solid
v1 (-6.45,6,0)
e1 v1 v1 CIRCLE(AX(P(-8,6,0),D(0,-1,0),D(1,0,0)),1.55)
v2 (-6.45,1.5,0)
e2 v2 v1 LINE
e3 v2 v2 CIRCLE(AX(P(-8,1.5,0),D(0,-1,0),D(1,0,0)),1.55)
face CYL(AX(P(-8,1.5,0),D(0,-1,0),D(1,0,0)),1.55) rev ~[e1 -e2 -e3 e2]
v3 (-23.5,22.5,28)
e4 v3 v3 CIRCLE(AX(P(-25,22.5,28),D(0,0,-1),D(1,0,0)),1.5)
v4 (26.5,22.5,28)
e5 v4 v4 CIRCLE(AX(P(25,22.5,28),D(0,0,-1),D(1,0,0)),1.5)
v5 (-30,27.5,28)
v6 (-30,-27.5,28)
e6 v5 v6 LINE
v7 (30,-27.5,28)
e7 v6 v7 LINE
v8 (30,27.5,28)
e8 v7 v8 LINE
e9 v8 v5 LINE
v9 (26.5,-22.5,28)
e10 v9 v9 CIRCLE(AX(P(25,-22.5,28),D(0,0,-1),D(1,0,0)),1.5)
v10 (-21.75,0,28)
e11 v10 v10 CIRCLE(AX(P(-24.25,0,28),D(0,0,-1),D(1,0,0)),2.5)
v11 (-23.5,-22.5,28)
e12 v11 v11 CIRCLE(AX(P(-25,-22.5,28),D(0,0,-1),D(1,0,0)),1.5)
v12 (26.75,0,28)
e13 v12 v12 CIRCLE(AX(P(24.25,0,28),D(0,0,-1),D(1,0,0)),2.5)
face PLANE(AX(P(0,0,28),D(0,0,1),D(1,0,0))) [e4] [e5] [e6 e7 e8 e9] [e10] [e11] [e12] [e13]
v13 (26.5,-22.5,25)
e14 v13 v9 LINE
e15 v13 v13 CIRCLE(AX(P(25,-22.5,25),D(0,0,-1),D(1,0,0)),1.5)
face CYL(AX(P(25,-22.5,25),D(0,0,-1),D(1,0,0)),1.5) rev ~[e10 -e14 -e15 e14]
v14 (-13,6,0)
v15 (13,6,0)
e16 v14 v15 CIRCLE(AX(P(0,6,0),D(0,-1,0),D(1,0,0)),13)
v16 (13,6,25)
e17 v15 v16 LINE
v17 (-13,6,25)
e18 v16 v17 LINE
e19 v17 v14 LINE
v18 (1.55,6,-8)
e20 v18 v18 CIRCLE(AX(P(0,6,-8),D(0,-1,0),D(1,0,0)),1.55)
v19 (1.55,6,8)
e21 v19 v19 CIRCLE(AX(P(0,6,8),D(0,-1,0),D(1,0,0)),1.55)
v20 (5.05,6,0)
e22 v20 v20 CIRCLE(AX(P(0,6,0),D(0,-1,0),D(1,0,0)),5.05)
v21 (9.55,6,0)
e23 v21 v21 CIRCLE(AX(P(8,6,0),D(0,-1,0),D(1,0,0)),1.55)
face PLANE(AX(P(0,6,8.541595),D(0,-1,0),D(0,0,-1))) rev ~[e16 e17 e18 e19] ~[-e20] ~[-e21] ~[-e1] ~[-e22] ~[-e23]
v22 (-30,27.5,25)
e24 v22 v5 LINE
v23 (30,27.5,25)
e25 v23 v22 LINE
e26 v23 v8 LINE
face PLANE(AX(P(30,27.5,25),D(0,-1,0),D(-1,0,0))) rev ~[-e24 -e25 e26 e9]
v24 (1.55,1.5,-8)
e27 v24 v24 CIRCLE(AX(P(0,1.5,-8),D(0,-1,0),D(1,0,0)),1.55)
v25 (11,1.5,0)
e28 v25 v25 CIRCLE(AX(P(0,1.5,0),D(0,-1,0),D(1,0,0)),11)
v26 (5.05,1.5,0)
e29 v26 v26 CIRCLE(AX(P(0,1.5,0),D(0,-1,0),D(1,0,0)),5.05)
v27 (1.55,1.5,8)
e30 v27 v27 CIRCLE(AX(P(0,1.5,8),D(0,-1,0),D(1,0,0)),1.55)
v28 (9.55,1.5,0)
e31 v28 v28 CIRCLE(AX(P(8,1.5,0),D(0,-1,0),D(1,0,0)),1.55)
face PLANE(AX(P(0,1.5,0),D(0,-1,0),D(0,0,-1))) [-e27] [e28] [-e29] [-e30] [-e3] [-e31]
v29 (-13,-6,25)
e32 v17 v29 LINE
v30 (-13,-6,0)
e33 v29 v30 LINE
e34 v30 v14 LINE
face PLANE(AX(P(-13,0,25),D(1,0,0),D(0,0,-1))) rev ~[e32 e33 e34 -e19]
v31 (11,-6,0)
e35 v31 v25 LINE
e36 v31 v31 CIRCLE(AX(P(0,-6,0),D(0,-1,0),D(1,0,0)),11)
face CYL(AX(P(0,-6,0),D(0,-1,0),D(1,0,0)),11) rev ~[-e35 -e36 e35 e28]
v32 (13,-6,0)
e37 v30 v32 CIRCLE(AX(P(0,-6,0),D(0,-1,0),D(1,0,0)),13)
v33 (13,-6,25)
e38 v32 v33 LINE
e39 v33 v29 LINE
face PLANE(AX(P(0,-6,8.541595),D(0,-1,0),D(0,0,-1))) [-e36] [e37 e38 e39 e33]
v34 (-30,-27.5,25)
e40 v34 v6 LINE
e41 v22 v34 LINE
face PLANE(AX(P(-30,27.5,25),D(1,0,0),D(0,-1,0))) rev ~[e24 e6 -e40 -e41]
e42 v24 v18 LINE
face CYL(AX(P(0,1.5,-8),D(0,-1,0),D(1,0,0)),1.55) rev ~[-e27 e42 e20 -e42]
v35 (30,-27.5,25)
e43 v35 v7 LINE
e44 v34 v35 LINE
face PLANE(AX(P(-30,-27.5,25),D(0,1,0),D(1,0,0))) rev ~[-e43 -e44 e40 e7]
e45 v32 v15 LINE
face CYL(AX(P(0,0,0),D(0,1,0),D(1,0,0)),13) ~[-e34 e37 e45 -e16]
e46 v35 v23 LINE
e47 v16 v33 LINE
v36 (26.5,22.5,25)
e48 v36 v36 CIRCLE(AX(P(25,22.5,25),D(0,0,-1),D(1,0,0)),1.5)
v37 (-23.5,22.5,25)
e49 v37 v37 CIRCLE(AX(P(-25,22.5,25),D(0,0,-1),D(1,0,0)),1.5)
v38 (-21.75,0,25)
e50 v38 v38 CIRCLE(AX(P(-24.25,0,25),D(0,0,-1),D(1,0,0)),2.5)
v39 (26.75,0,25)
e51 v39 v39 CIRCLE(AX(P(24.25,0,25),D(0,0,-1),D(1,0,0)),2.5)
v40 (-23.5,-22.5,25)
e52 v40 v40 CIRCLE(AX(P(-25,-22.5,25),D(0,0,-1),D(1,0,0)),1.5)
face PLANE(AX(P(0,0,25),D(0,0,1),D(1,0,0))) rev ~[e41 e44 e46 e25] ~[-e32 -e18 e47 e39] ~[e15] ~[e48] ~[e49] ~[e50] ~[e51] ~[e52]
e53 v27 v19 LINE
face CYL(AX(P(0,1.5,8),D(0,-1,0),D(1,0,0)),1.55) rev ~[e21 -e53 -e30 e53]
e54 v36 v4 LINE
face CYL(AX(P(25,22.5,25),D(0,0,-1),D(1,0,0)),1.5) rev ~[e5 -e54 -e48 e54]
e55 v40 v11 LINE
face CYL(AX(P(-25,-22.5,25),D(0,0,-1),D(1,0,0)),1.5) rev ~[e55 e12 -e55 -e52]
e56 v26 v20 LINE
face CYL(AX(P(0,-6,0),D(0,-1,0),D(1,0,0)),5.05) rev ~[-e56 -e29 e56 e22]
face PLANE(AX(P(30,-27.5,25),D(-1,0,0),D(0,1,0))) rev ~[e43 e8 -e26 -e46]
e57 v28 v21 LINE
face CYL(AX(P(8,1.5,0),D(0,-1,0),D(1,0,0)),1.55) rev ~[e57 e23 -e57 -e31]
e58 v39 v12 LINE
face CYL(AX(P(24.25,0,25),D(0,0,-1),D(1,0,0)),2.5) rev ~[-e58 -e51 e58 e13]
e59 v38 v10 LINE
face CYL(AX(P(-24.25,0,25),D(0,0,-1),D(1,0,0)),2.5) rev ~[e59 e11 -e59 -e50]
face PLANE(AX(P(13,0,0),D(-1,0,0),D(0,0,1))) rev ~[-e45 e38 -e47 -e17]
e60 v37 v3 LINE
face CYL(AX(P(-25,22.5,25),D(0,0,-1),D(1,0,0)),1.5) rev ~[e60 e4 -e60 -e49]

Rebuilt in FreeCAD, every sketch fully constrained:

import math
import FreeCAD as App
import Part
import Sketcher

V = App.Vector


def add_polygon(sketch, points):
    """Adds a closed chain of lines whose ends are joined by coincident constraints."""
    first, n = sketch.GeometryCount, len(points)
    for a, b in zip(points, points[1:] + points[:1]):
        sketch.addGeometry(Part.LineSegment(App.Vector(*a, 0), App.Vector(*b, 0)), False)
    for i in range(n):
        sketch.addConstraint(Sketcher.Constraint("Coincident", first + i, 2, first + (i + 1) % n, 1))

doc = App.newDocument("Part")
params = doc.addObject("Spreadsheet::Sheet", "Params")
for row, (alias, value) in enumerate([
    ("sketch1_radius", "13 mm"),
    ("sketch1_height", "25 mm"),
    ("pad1_length", "12 mm"),
    ("sketch2_diameter", "10.1 mm"),
    ("sketch3_diameter", "22 mm"),
    ("pocket2_length", "7.5 mm"),
    ("sketch4_width", "60 mm"),
    ("sketch4_height", "55 mm"),
    ("pad2_length", "3 mm"),
    ("sketch5_diameter", "5 mm"),
    ("sketch5_diameter2", "3 mm"),
    ("sketch6_diameter", "3.1 mm"),
    ("pocket4_length", "4.5 mm"),
], start=1):
    params.set(f"A{row}", alias)
    params.set(f"B{row}", "=" + value)
    params.setAlias(f"B{row}", alias)

body = doc.addObject("PartDesign::Body", "Body")

# Sketch on XZ plane
sketch1 = body.newObject("Sketcher::SketchObject", "Sketch")
sketch1.AttachmentSupport = (doc.getObject("XZ_Plane"), [""])
sketch1.MapMode = "FlatFace"
sketch1.addGeometry(Part.ArcOfCircle(Part.Circle(V(0, 0, 0), V(0, 0, 1), 13), math.radians(180), math.radians(360)), False)
sketch1.addGeometry(Part.LineSegment(V(13, 0, 0), V(13, 25, 0)), False)
sketch1.addGeometry(Part.LineSegment(V(13, 25, 0), V(-13, 25, 0)), False)
sketch1.addGeometry(Part.LineSegment(V(-13, 25, 0), V(-13, 0, 0)), False)
sketch1.addConstraint(Sketcher.Constraint("Tangent", 0, 2, 1, 1))
sketch1.addConstraint(Sketcher.Constraint("Coincident", 1, 2, 2, 1))
sketch1.addConstraint(Sketcher.Constraint("Coincident", 2, 2, 3, 1))
sketch1.addConstraint(Sketcher.Constraint("Tangent", 3, 2, 0, 1))
sketch1.addConstraint(Sketcher.Constraint("Vertical", 1))
sketch1.addConstraint(Sketcher.Constraint("Horizontal", 2))
sketch1.addConstraint(Sketcher.Constraint("Vertical", 3))
sketch1.addConstraint(Sketcher.Constraint("Coincident", 0, 3, -1, 1))
sketch1.addConstraint(Sketcher.Constraint("Radius", 0, 13.0))
sketch1.addConstraint(Sketcher.Constraint("DistanceY", 1, 1, 1, 2, 25.0))
sketch1.setExpression("Constraints[8]", "Params.sketch1_radius")
sketch1.setExpression("Constraints[9]", "Params.sketch1_height")
pad1 = body.newObject("PartDesign::Pad", "Pad")
pad1.Profile = sketch1
pad1.setExpression("Length", "Params.pad1_length")
pad1.Midplane = True

# Sketch on XZ plane
sketch2 = body.newObject("Sketcher::SketchObject", "Sketch001")
sketch2.AttachmentSupport = (doc.getObject("XZ_Plane"), [""])
sketch2.MapMode = "FlatFace"
sketch2.AttachmentOffset = App.Placement(V(0, 0, 6), App.Rotation())
sketch2.addGeometry(Part.Circle(V(0, 0, 0), V(0, 0, 1), 5.05), False)
sketch2.addConstraint(Sketcher.Constraint("Coincident", 0, 3, -1, 1))
sketch2.addConstraint(Sketcher.Constraint("Diameter", 0, 10.1))
sketch2.setExpression("Constraints[1]", "Params.sketch2_diameter")
pocket1 = body.newObject("PartDesign::Pocket", "Pocket")
pocket1.Profile = sketch2
pocket1.Type = "UpToFirst"

# Sketch on XZ plane
sketch3 = body.newObject("Sketcher::SketchObject", "Sketch002")
sketch3.AttachmentSupport = (doc.getObject("XZ_Plane"), [""])
sketch3.MapMode = "FlatFace"
sketch3.AttachmentOffset = App.Placement(V(0, 0, 6), App.Rotation())
sketch3.addGeometry(Part.Circle(V(0, 0, 0), V(0, 0, 1), 11), False)
sketch3.addConstraint(Sketcher.Constraint("Coincident", 0, 3, -1, 1))
sketch3.addConstraint(Sketcher.Constraint("Diameter", 0, 22.0))
sketch3.setExpression("Constraints[1]", "Params.sketch3_diameter")
pocket2 = body.newObject("PartDesign::Pocket", "Pocket001")
pocket2.Profile = sketch3
pocket2.setExpression("Length", "Params.pocket2_length")

# Sketch on XY plane
sketch4 = body.newObject("Sketcher::SketchObject", "Sketch003")
sketch4.AttachmentSupport = (doc.getObject("XY_Plane"), [""])
sketch4.MapMode = "FlatFace"
sketch4.AttachmentOffset = App.Placement(V(0, 0, 25), App.Rotation())
add_polygon(sketch4, [(-30, 27.5), (-30, -27.5), (30, -27.5), (30, 27.5)])  # lines 0-3
sketch4.addConstraint(Sketcher.Constraint("Vertical", 0))
sketch4.addConstraint(Sketcher.Constraint("Horizontal", 1))
sketch4.addConstraint(Sketcher.Constraint("Vertical", 2))
sketch4.addConstraint(Sketcher.Constraint("Horizontal", 3))
sketch4.addConstraint(Sketcher.Constraint("Symmetric", 0, 2, 2, 2, -1, 1))
sketch4.addConstraint(Sketcher.Constraint("DistanceX", 1, 1, 1, 2, 60.0))
sketch4.addConstraint(Sketcher.Constraint("DistanceY", 0, 2, 0, 1, 55.0))
sketch4.setExpression("Constraints[9]", "Params.sketch4_width")
sketch4.setExpression("Constraints[10]", "Params.sketch4_height")
pad2 = body.newObject("PartDesign::Pad", "Pad001")
pad2.Profile = sketch4
pad2.setExpression("Length", "Params.pad2_length")

# Sketch on XY plane
sketch5 = body.newObject("Sketcher::SketchObject", "Sketch004")
sketch5.AttachmentSupport = (doc.getObject("XY_Plane"), [""])
sketch5.MapMode = "FlatFace"
sketch5.AttachmentOffset = App.Placement(V(0, 0, 25), App.Rotation())
sketch5.addGeometry(Part.Circle(V(-24.25, 0, 0), V(0, 0, 1), 2.5), False)
sketch5.addGeometry(Part.Circle(V(24.25, 0, 0), V(0, 0, 1), 2.5), False)
sketch5.addGeometry(Part.Circle(V(-25, -22.5, 0), V(0, 0, 1), 1.5), False)
sketch5.addGeometry(Part.Circle(V(25, -22.5, 0), V(0, 0, 1), 1.5), False)
sketch5.addGeometry(Part.Circle(V(25, 22.5, 0), V(0, 0, 1), 1.5), False)
sketch5.addGeometry(Part.Circle(V(-25, 22.5, 0), V(0, 0, 1), 1.5), False)
sketch5.addConstraint(Sketcher.Constraint("Equal", 0, 1))
sketch5.addConstraint(Sketcher.Constraint("Equal", 2, 3))
sketch5.addConstraint(Sketcher.Constraint("Equal", 3, 4))
sketch5.addConstraint(Sketcher.Constraint("Equal", 4, 5))
sketch5.addConstraint(Sketcher.Constraint("Symmetric", 0, 3, 1, 3, -1, 1))
sketch5.addConstraint(Sketcher.Constraint("Symmetric", 2, 3, 4, 3, -1, 1))
sketch5.addConstraint(Sketcher.Constraint("Symmetric", 3, 3, 5, 3, -1, 1))
sketch5.addConstraint(Sketcher.Constraint("Symmetric", 2, 3, 3, 3, -2))
sketch5.addConstraint(Sketcher.Constraint("PointOnObject", 0, 3, -1))
sketch5.addConstraint(Sketcher.Constraint("Diameter", 0, 5.0))
sketch5.addConstraint(Sketcher.Constraint("Diameter", 2, 3.0))
sketch5.addConstraint(Sketcher.Constraint("DistanceX", 2, 3, -1, 1, 25.0))
sketch5.addConstraint(Sketcher.Constraint("DistanceY", 3, 3, 4, 3, 45.0))
sketch5.addConstraint(Sketcher.Constraint("DistanceX", 0, 3, 1, 3, 48.5))
sketch5.setExpression("Constraints[9]", "Params.sketch5_diameter")
sketch5.setExpression("Constraints[10]", "Params.sketch5_diameter2")
pocket3 = body.newObject("PartDesign::Pocket", "Pocket002")
pocket3.Profile = sketch5
pocket3.Type = "UpToFirst"
pocket3.Reversed = True

# Sketch on XZ plane
sketch6 = body.newObject("Sketcher::SketchObject", "Sketch005")
sketch6.AttachmentSupport = (doc.getObject("XZ_Plane"), [""])
sketch6.MapMode = "FlatFace"
sketch6.AttachmentOffset = App.Placement(V(0, 0, -1.5), App.Rotation())
sketch6.addGeometry(Part.Circle(V(8, 0, 0), V(0, 0, 1), 1.55), False)
sketch6.addGeometry(Part.Circle(V(-8, 0, 0), V(0, 0, 1), 1.55), False)
sketch6.addGeometry(Part.Circle(V(0, 8, 0), V(0, 0, 1), 1.55), False)
sketch6.addGeometry(Part.Circle(V(0, -8, 0), V(0, 0, 1), 1.55), False)
sketch6.addConstraint(Sketcher.Constraint("Equal", 0, 1))
sketch6.addConstraint(Sketcher.Constraint("Equal", 1, 2))
sketch6.addConstraint(Sketcher.Constraint("Equal", 2, 3))
sketch6.addConstraint(Sketcher.Constraint("Symmetric", 0, 3, 1, 3, -1, 1))
sketch6.addConstraint(Sketcher.Constraint("Symmetric", 2, 3, 3, 3, -1, 1))
sketch6.addConstraint(Sketcher.Constraint("PointOnObject", 0, 3, -1))
sketch6.addConstraint(Sketcher.Constraint("PointOnObject", 2, 3, -2))
sketch6.addConstraint(Sketcher.Constraint("Diameter", 0, 3.1))
sketch6.addConstraint(Sketcher.Constraint("DistanceX", -1, 1, 0, 3, 8.0))
sketch6.addConstraint(Sketcher.Constraint("DistanceY", -1, 1, 2, 3, 8.0))
sketch6.setExpression("Constraints[7]", "Params.sketch6_diameter")
pocket4 = body.newObject("PartDesign::Pocket", "Pocket003")
pocket4.Profile = sketch6
pocket4.setExpression("Length", "Params.pocket4_length")

doc.recompute()
